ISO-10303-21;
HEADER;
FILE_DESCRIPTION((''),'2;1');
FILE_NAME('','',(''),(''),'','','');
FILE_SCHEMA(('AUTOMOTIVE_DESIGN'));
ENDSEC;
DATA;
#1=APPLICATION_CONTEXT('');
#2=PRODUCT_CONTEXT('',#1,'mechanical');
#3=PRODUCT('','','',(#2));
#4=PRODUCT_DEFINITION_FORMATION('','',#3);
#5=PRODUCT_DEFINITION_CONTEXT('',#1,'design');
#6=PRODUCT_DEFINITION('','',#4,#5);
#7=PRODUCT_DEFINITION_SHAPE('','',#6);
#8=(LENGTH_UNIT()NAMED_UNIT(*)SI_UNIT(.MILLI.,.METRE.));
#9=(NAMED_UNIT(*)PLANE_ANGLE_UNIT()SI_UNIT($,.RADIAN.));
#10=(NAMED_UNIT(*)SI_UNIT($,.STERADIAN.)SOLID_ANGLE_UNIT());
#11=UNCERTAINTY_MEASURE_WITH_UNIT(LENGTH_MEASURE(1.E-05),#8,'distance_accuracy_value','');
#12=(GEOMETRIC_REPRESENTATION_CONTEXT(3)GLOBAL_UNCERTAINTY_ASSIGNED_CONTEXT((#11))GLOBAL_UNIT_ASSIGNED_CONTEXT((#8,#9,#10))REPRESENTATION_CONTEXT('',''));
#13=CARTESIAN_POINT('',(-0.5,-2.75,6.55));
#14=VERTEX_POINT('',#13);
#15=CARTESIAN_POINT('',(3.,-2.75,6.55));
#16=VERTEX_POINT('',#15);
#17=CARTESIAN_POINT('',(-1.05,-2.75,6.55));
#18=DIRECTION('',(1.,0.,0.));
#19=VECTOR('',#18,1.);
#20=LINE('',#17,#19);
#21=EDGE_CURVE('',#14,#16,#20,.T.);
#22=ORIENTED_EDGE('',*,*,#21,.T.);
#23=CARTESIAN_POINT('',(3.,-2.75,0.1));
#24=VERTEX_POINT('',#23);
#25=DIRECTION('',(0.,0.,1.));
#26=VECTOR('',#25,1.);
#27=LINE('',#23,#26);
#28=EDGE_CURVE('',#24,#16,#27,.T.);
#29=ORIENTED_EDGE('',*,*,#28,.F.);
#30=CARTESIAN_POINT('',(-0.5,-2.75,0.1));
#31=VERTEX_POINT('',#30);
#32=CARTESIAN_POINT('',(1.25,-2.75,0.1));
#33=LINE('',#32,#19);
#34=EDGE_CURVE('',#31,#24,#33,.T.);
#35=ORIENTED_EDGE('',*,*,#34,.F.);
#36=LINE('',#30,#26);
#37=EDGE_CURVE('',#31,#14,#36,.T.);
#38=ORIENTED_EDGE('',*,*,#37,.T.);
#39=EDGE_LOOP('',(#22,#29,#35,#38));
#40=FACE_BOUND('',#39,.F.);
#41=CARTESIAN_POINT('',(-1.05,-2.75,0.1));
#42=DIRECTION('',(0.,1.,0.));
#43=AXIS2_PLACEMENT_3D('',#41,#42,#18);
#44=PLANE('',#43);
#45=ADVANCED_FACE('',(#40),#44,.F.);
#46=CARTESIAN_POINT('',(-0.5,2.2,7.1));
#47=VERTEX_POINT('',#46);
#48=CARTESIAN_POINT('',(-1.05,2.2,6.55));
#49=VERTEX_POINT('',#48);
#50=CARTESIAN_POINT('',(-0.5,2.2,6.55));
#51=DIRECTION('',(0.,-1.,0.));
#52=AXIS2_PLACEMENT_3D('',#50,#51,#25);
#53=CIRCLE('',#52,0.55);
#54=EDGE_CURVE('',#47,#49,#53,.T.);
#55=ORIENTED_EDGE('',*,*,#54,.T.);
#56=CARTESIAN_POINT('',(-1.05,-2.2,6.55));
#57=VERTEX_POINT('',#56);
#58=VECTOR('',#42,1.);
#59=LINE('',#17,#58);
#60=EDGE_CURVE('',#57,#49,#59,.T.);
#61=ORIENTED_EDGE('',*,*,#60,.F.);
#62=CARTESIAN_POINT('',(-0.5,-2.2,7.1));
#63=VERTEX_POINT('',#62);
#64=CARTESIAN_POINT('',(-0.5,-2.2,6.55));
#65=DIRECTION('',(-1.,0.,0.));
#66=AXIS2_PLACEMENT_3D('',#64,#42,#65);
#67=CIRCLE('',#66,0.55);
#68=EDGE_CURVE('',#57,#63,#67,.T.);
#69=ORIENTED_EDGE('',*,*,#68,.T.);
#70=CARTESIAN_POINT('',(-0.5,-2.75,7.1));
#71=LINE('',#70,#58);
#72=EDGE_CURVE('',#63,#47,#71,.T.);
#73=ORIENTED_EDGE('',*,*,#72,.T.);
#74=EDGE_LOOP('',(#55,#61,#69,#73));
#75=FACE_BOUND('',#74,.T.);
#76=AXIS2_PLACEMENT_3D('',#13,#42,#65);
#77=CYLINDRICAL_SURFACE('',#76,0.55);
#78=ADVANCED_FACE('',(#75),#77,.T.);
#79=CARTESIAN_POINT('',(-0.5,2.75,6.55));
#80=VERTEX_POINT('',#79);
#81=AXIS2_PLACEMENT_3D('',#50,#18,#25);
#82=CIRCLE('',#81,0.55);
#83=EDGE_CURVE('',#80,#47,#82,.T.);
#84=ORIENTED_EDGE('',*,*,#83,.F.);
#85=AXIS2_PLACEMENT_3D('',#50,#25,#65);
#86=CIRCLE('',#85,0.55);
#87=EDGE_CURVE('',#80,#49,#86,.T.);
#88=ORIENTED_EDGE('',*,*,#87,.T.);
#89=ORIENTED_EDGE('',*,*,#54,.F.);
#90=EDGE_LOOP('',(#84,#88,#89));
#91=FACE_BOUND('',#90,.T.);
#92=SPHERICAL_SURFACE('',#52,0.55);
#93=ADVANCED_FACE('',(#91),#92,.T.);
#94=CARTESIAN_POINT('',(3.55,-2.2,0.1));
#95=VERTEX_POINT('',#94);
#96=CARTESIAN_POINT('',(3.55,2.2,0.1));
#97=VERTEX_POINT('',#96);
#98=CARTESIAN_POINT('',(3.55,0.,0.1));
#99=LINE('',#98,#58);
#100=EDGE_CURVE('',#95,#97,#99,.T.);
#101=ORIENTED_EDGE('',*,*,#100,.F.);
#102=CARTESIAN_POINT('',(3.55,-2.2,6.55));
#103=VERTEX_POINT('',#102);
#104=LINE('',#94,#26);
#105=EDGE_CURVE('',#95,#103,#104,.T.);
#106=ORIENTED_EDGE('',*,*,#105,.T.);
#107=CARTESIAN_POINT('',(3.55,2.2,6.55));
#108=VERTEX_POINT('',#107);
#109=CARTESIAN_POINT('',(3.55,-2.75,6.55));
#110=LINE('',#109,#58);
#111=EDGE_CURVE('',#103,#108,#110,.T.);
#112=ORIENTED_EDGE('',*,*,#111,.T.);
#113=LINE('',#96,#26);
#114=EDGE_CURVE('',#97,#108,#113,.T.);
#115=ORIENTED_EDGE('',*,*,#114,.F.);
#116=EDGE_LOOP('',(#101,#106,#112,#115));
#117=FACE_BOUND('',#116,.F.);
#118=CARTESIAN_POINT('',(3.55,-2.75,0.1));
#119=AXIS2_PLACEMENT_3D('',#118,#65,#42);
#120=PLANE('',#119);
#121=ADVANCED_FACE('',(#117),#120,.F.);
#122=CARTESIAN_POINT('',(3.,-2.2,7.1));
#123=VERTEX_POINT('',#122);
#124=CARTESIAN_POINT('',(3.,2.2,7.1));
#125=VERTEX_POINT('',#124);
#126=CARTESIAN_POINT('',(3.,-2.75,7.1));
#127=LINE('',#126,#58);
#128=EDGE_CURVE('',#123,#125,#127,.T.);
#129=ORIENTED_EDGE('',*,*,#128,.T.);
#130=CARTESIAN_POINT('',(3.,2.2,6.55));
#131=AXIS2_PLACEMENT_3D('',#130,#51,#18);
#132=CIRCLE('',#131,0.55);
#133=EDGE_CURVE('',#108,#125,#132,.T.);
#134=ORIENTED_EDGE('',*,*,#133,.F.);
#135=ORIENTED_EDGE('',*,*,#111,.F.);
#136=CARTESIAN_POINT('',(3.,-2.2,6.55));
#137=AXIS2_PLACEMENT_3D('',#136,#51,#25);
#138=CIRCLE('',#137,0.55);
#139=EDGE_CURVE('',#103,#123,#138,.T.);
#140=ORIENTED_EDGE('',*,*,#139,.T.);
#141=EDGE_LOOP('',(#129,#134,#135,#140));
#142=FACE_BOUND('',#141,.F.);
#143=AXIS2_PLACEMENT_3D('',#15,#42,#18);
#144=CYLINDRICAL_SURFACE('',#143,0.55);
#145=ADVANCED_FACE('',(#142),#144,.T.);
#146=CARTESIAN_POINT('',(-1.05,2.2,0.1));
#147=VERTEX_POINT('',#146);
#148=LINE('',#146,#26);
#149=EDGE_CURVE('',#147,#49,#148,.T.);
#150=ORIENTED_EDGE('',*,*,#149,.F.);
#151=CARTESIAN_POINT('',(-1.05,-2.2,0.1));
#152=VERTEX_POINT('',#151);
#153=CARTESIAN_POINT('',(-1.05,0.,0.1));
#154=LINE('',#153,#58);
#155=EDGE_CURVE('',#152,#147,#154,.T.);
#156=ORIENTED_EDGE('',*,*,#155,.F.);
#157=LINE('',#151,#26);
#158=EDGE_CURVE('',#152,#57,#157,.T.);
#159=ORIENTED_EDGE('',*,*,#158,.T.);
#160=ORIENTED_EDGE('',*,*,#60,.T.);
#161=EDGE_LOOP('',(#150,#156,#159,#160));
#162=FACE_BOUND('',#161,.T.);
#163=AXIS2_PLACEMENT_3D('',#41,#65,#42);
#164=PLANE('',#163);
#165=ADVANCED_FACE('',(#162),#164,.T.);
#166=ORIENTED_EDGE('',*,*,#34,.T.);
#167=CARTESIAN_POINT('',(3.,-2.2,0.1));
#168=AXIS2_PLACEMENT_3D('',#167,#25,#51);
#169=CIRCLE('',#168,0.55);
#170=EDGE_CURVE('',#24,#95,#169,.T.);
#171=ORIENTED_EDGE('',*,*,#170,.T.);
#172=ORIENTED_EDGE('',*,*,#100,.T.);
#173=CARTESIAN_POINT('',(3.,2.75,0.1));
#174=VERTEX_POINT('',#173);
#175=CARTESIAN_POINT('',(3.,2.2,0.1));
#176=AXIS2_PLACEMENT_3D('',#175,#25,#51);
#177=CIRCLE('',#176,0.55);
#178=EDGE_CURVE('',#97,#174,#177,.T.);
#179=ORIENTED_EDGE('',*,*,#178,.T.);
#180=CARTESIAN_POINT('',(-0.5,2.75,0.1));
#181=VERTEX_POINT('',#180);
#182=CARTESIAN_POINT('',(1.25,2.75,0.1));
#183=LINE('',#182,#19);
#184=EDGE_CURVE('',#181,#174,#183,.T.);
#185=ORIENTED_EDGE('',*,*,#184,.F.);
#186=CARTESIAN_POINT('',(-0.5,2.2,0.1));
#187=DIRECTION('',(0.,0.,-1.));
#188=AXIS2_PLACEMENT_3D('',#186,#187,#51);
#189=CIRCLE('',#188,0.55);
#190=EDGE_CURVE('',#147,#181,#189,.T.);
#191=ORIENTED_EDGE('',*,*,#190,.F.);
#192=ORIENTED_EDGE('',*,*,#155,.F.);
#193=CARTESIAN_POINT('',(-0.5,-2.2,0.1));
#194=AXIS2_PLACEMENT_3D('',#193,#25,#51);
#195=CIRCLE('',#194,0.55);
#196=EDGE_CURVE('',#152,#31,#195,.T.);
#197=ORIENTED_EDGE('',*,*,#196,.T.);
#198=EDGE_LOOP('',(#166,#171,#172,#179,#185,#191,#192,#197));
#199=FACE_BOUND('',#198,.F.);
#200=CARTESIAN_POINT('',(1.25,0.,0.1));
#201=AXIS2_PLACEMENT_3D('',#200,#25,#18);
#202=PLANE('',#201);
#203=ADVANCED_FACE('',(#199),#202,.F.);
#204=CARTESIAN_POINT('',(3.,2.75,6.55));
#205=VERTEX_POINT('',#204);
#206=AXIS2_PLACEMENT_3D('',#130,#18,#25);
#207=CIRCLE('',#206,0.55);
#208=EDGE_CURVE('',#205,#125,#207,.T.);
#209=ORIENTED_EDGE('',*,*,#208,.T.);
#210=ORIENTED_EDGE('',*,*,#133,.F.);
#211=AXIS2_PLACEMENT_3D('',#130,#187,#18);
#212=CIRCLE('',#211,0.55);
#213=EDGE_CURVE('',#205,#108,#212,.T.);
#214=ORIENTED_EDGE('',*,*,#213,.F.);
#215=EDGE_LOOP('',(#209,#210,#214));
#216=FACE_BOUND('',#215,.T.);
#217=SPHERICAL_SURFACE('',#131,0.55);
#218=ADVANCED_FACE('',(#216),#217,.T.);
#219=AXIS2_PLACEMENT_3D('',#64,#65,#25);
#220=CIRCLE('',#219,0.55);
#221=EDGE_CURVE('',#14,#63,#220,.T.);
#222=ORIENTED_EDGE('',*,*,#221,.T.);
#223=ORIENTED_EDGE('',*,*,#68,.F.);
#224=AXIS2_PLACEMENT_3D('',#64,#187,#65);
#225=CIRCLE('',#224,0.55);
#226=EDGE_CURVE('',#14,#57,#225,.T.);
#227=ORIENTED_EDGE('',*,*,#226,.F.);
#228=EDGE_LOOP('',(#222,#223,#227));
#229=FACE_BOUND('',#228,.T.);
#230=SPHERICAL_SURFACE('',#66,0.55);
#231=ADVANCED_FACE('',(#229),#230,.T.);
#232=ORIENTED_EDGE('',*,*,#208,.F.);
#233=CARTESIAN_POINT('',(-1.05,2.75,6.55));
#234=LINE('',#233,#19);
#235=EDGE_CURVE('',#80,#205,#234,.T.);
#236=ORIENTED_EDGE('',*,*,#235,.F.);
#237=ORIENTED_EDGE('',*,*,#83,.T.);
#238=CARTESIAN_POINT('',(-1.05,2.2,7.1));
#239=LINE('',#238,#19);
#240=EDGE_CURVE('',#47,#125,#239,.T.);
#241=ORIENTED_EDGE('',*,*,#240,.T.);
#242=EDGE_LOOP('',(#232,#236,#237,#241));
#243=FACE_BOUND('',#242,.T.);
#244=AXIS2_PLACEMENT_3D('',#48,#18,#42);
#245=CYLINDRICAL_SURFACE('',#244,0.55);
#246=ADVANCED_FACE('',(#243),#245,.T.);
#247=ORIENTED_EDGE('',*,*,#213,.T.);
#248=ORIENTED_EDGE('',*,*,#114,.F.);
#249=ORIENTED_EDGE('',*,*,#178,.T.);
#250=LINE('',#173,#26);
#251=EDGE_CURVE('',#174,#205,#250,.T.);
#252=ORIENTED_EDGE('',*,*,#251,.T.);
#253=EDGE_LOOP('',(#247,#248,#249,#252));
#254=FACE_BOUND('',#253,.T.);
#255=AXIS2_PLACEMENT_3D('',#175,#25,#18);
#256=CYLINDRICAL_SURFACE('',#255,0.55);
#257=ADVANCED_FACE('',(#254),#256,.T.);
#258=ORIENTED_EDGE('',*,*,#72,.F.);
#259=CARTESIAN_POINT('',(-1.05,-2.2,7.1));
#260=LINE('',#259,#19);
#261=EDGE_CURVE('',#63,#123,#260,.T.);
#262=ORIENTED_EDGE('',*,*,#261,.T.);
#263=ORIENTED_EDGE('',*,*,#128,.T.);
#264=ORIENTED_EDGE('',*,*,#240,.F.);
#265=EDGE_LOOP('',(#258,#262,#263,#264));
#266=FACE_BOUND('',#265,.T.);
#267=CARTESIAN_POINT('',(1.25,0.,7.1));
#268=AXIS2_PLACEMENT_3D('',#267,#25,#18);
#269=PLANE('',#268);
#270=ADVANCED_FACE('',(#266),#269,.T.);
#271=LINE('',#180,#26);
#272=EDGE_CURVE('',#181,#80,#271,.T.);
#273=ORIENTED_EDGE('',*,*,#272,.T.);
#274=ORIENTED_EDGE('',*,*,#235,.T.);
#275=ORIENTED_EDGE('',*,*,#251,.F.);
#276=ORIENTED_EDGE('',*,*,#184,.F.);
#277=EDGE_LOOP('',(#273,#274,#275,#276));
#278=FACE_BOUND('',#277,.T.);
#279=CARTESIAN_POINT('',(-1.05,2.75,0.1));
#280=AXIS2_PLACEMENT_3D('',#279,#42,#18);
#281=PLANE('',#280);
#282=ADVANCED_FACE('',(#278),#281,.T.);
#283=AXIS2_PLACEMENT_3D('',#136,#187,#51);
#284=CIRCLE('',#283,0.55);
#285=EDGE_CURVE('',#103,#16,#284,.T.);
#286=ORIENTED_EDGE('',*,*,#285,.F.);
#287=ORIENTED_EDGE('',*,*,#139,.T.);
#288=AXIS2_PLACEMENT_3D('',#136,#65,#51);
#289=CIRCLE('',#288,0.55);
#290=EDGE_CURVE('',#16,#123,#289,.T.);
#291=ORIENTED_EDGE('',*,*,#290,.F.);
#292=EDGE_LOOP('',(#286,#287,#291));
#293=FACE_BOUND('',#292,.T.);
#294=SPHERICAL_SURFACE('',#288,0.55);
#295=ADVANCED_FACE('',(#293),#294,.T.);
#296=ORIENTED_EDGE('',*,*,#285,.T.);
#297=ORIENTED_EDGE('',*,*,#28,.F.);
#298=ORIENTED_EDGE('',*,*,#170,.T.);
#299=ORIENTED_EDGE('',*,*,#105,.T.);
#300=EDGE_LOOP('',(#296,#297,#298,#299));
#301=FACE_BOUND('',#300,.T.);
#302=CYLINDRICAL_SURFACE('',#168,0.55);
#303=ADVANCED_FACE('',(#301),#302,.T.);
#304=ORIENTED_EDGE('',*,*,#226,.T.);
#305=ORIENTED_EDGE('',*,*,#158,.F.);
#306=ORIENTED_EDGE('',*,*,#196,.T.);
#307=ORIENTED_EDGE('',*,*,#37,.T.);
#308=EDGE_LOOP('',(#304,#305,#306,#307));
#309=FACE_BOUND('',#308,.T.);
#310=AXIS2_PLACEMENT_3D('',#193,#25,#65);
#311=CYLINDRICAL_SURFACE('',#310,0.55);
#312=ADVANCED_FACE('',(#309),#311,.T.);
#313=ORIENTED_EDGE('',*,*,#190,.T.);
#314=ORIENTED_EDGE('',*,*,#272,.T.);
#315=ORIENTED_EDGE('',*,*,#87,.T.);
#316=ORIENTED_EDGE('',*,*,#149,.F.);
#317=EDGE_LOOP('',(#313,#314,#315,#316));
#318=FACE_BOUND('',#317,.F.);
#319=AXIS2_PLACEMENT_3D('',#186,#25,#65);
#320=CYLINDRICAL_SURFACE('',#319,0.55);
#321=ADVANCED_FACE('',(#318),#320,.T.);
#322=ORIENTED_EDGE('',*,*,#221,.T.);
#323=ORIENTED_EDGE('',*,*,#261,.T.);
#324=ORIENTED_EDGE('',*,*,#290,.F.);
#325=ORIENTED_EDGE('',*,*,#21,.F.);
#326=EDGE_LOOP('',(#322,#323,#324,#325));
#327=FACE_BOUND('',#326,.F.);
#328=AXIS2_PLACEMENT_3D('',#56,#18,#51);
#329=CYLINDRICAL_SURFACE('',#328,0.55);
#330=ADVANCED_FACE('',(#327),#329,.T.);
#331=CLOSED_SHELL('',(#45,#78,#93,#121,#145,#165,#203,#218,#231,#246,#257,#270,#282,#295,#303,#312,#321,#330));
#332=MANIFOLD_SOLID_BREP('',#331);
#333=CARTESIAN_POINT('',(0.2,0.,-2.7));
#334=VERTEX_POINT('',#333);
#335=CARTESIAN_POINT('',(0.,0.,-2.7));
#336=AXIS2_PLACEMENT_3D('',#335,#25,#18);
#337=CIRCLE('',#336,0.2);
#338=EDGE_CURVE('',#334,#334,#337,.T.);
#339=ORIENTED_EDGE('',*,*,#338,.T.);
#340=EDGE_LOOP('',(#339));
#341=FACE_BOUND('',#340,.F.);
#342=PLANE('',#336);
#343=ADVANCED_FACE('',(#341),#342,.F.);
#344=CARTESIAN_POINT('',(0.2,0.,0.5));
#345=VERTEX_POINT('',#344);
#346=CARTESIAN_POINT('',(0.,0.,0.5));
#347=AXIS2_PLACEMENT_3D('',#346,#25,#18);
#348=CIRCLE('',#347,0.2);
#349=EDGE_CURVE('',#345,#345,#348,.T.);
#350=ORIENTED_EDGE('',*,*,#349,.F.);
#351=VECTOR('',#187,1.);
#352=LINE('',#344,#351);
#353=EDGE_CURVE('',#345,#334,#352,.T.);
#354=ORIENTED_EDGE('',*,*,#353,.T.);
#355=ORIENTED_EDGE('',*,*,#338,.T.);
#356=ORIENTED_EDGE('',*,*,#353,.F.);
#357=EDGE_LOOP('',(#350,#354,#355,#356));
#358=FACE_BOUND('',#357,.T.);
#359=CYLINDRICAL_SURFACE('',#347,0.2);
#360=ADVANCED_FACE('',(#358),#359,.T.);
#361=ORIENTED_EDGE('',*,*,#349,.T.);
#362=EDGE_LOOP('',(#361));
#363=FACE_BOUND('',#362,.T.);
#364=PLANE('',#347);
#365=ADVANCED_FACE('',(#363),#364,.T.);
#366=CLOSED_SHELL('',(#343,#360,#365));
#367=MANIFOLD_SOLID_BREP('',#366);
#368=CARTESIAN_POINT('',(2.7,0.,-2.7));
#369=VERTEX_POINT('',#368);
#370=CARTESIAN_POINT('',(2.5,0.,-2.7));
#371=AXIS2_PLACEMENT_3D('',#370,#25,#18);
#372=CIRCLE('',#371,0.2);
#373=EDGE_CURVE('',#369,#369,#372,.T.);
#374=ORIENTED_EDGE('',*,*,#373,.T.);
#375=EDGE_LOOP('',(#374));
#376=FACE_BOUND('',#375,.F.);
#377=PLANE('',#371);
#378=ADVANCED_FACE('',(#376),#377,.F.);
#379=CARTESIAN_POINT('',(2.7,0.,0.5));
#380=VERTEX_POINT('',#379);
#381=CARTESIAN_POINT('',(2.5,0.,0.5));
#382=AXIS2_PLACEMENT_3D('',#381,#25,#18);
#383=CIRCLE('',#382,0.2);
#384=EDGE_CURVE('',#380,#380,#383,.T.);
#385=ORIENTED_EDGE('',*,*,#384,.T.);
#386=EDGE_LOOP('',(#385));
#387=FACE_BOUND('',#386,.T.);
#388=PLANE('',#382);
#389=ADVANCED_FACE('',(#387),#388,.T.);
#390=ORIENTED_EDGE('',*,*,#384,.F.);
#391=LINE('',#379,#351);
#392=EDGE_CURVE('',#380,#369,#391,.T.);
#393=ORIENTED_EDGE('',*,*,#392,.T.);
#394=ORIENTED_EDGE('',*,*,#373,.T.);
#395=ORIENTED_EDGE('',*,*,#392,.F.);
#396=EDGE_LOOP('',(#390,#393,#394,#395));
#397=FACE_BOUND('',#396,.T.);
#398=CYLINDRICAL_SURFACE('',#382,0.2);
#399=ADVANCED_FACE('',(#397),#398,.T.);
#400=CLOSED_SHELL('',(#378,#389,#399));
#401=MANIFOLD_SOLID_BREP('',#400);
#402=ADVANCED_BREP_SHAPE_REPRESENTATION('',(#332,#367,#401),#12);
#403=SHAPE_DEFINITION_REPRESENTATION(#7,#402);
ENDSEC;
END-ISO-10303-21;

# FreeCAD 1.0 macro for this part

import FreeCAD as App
import Part
import Sketcher


def edges_at(feature, points):
    """Names of the edges that pass closest to the given points."""
    edges = feature.Shape.Edges
    near = lambda p: min(range(len(edges)), key=lambda i: edges[i].distToShape(Part.Vertex(*p))[0])
    return sorted({f"Edge{near(p) + 1}" for p in points})


def add_polygon(sketch, points):
    """Adds a closed chain of lines whose ends are joined by coincident constraints."""
    first, n = sketch.GeometryCount, len(points)
    for a, b in zip(points, points[1:] + points[:1]):
        sketch.addGeometry(Part.LineSegment(App.Vector(*a, 0), App.Vector(*b, 0)), False)
    for i in range(n):
        sketch.addConstraint(Sketcher.Constraint("Coincident", first + i, 2, first + (i + 1) % n, 1))

doc = App.newDocument("Part")
body = doc.addObject("PartDesign::Body", "Body")

sketch1 = doc.addObject("Sketcher::SketchObject", "Sketch")
body.addObject(sketch1)
sketch1.AttachmentSupport = (doc.XY_Plane, [""])
sketch1.MapMode = "FlatFace"
sketch1.AttachmentOffset = App.Placement(App.Vector(0, 0, 0.1), App.Rotation())
add_polygon(sketch1, [(-1.1, 2.8), (-1.1, -2.8), (3.5, -2.8), (3.5, 2.8)])
sketch1.addConstraint(Sketcher.Constraint("Vertical", 0))
sketch1.addConstraint(Sketcher.Constraint("Horizontal", 1))
sketch1.addConstraint(Sketcher.Constraint("Vertical", 2))
sketch1.addConstraint(Sketcher.Constraint("Horizontal", 3))
sketch1.addConstraint(Sketcher.Constraint("DistanceX", 1, 1, 1, 2, 4.6))
sketch1.addConstraint(Sketcher.Constraint("DistanceY", 0, 2, 0, 1, 5.5))
sketch1.addConstraint(Sketcher.Constraint("DistanceX", 0, 2, -1, 1, 1.05))
sketch1.addConstraint(Sketcher.Constraint("DistanceY", 0, 2, -1, 1, 2.75))
pad1 = doc.addObject("PartDesign::Pad", "Pad")
body.addObject(pad1)
pad1.Profile = sketch1
pad1.Length = 7
doc.recompute()

fillet = doc.addObject("PartDesign::Fillet", "Fillet")
body.addObject(fillet)
fillet.Base = (pad1, edges_at(pad1, [
    (-1.05, 0, 7.1),
    (-1.05, -2.75, 3.6),
    (1.25, -2.75, 7.1),
    (3.55, -2.75, 3.6),
    (3.55, 0, 7.1),
    (3.55, 2.75, 3.6),
    (1.25, 2.75, 7.1),
    (-1.05, 2.75, 3.6),
]))
fillet.Radius = 0.55
body2 = doc.addObject("PartDesign::Body", "Body001")
body2.AllowCompound = True

sketch2 = doc.addObject("Sketcher::SketchObject", "Sketch001")
body2.addObject(sketch2)
sketch2.AttachmentSupport = (doc.getObject("XY_Plane001"), [""])
sketch2.MapMode = "FlatFace"
sketch2.AttachmentOffset = App.Placement(App.Vector(0, 0, 0.5), App.Rotation())
sketch2.addGeometry(Part.Circle(App.Vector(0, 0, 0), App.Vector(0, 0, 1), 0.2), False)
sketch2.addGeometry(Part.Circle(App.Vector(2.5, 0, 0), App.Vector(0, 0, 1), 0.2), False)
sketch2.addConstraint(Sketcher.Constraint("Coincident", 0, 3, -1, 1))
sketch2.addConstraint(Sketcher.Constraint("Equal", 0, 1))
sketch2.addConstraint(Sketcher.Constraint("PointOnObject", 1, 3, -1))
sketch2.addConstraint(Sketcher.Constraint("Diameter", 0, 0.4))
sketch2.addConstraint(Sketcher.Constraint("DistanceX", -1, 1, 1, 3, 2.5))
pad2 = doc.addObject("PartDesign::Pad", "Pad001")
body2.addObject(pad2)
pad2.Profile = sketch2
pad2.Length = 3.2
pad2.Reversed = True

doc.recompute()
